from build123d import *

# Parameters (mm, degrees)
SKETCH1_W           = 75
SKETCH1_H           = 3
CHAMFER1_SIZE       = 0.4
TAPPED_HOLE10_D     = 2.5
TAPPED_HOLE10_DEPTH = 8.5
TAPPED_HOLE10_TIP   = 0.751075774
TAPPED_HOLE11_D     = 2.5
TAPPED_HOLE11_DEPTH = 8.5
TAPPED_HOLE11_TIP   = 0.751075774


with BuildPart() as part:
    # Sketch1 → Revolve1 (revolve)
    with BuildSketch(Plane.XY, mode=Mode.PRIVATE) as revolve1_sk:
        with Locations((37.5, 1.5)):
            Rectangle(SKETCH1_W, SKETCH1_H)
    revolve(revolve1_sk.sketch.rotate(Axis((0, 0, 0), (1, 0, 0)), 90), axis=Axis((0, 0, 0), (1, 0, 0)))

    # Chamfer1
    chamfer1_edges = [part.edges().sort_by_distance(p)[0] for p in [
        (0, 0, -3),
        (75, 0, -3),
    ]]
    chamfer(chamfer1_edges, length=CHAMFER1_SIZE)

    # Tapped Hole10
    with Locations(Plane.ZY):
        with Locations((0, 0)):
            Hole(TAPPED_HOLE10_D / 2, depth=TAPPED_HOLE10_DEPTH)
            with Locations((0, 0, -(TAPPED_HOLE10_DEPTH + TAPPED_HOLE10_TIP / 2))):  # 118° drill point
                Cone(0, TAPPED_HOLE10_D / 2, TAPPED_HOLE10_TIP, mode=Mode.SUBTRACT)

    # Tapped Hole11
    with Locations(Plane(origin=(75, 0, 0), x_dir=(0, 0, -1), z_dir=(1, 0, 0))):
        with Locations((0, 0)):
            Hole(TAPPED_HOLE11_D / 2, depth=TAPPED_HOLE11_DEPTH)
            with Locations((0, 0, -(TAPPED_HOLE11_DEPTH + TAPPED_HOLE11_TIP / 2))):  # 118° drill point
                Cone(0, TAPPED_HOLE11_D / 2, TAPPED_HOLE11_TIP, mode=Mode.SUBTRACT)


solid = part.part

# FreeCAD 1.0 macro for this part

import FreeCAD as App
import Part
import Sketcher
Q = App.Units.Quantity


def edges_at(feature, points):
    """Names of the edges that pass closest to the given points."""
    edges = feature.Shape.Edges
    near = lambda p: min(range(len(edges)), key=lambda i: edges[i].distToShape(Part.Vertex(*p))[0])
    return sorted({f"Edge{near(p) + 1}" for p in points})


def add_polygon(sketch, points):
    """Adds a closed chain of lines whose ends are joined by coincident constraints."""
    first, n = sketch.GeometryCount, len(points)
    for a, b in zip(points, points[1:] + points[:1]):
        sketch.addGeometry(Part.LineSegment(App.Vector(*a, 0), App.Vector(*b, 0)), False)
    for i in range(n):
        sketch.addConstraint(Sketcher.Constraint("Coincident", first + i, 2, first + (i + 1) % n, 1))

doc = App.newDocument("Part")
body = doc.addObject("PartDesign::Body", "Body")

# Sketch on XY plane
sketch1 = body.newObject("Sketcher::SketchObject", "Sketch")
sketch1.AttachmentSupport = (doc.getObject("XY_Plane"), [""])
sketch1.MapMode = "FlatFace"
add_polygon(sketch1, [(0, 3), (0, 0), (75, 0), (75, 3)])  # lines 0-3
sketch1.addConstraint([
    Sketcher.Constraint("Vertical", 0),
    Sketcher.Constraint("Horizontal", 1),
    Sketcher.Constraint("Vertical", 2),
    Sketcher.Constraint("Horizontal", 3),
    Sketcher.Constraint("Coincident", 0, 2, -1, 1),
    Sketcher.Constraint("DistanceX", 1, 1, 1, 2, Q("75 mm")),
    Sketcher.Constraint("DistanceY", 0, 2, 0, 1, Q("3 mm")),
])
revolution = body.newObject("PartDesign::Revolution", "Revolution")
revolution.Profile = sketch1
revolution.ReferenceAxis = (sketch1, ["H_Axis"])
revolution.Angle = 360
doc.recompute()

chamfer = body.newObject("PartDesign::Chamfer", "Chamfer")
chamfer.Base = (revolution, edges_at(revolution, [(0, 0, -3), (75, 0, -3)]))
chamfer.Size = 0.4

# Sketch on YZ plane
sketch2 = body.newObject("Sketcher::SketchObject", "Sketch001")
sketch2.AttachmentSupport = (doc.getObject("YZ_Plane"), [""])
sketch2.MapMode = "FlatFace"
sketch2.addGeometry(Part.Circle(App.Vector(0, 0, 0), App.Vector(0, 0, 1), 1.25), False)
sketch2.addConstraint([
    Sketcher.Constraint("Coincident", 0, 3, -1, 1),
    Sketcher.Constraint("Diameter", 0, Q("2.5 mm")),
])
doc.recompute()
hole = body.newObject("PartDesign::Hole", "Hole")
hole.Profile = sketch2
hole.ThreadType = "None"
hole.Diameter = 2.5
hole.DepthType = "Dimension"
hole.Depth = 8.5
hole.DrillPoint = "Angled"
hole.DrillPointAngle = 118
hole.Reversed = True

# Sketch on YZ plane
sketch3 = body.newObject("Sketcher::SketchObject", "Sketch002")
sketch3.AttachmentSupport = (doc.getObject("YZ_Plane"), [""])
sketch3.MapMode = "FlatFace"
sketch3.AttachmentOffset = App.Placement(App.Vector(0, 0, 75), App.Rotation())
sketch3.addGeometry(Part.Circle(App.Vector(0, 0, 0), App.Vector(0, 0, 1), 1.25), False)
sketch3.addConstraint([
    Sketcher.Constraint("Coincident", 0, 3, -1, 1),
    Sketcher.Constraint("Diameter", 0, Q("2.5 mm")),
])
doc.recompute()
hole2 = body.newObject("PartDesign::Hole", "Hole001")
hole2.Profile = sketch3
hole2.ThreadType = "None"
hole2.Diameter = 2.5
hole2.DepthType = "Dimension"
hole2.Depth = 8.5
hole2.DrillPoint = "Angled"
hole2.DrillPointAngle = 118

doc.recompute()
